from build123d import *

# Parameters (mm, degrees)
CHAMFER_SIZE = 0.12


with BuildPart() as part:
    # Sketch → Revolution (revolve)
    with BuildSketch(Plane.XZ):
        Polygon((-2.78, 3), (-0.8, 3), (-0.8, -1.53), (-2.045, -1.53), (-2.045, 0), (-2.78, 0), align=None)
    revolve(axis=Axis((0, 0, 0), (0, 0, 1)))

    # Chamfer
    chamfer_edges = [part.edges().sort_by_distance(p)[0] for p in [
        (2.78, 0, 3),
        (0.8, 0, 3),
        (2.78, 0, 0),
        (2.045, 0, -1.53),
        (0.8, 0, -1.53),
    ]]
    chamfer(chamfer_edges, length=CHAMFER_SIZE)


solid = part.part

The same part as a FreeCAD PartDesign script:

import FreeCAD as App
import Part
import Sketcher

V = App.Vector
Q = App.Units.Quantity


def edges_at(feature, points):
    """Names of the edges that pass closest to the given points."""
    edges = feature.Shape.Edges
    near = lambda p: min(range(len(edges)), key=lambda i: edges[i].distToShape(Part.Vertex(*p))[0])
    return sorted({f"Edge{near(p) + 1}" for p in points})

doc = App.newDocument("Part")
params = doc.addObject("Spreadsheet::Sheet", "Params")
for row, (alias, value) in enumerate([
    ("sketch1_height", "3 mm"),
    ("sketch1_width", "1.98 mm"),
    ("sketch1_height2", "1.53 mm"),
    ("revolution_angle", "360 deg"),
    ("chamfer_size", "0.12 mm"),
], start=1):
    params.set(f"A{row}", alias)
    params.set(f"B{row}", "=" + value)
    params.setAlias(f"B{row}", alias)

body = doc.addObject("PartDesign::Body", "Body")

# Sketch on XZ plane
sketch1 = doc.addObject("Sketcher::SketchObject", "Sketch")
body.addObject(sketch1)
sketch1.AttachmentSupport = (doc.XZ_Plane, [""])
sketch1.MapMode = "FlatFace"
sketch1.addGeometry([
    Part.LineSegment(V(-0.8, 3, 0), V(-2.8, 3, 0)),  # 0
    Part.LineSegment(V(-2.8, 3, 0), V(-2.8, 0, 0)),  # 1
    Part.LineSegment(V(-2.8, 0, 0), V(-2, 0, 0)),  # 2
    Part.LineSegment(V(-2, 0, 0), V(-2, -1.5, 0)),  # 3
    Part.LineSegment(V(-2, -1.5, 0), V(-0.8, -1.5, 0)),  # 4
    Part.LineSegment(V(-0.8, -1.5, 0), V(-0.8, 3, 0)),  # 5
], False)
sketch1.addConstraint([
    Sketcher.Constraint("Coincident", 0, 2, 1, 1),
    Sketcher.Constraint("Coincident", 1, 2, 2, 1),
    Sketcher.Constraint("Coincident", 2, 2, 3, 1),
    Sketcher.Constraint("Coincident", 3, 2, 4, 1),
    Sketcher.Constraint("Coincident", 4, 2, 5, 1),
    Sketcher.Constraint("Coincident", 5, 2, 0, 1),
    Sketcher.Constraint("Horizontal", 0),
    Sketcher.Constraint("Vertical", 1),
    Sketcher.Constraint("Horizontal", 2),
    Sketcher.Constraint("Vertical", 3),
    Sketcher.Constraint("Horizontal", 4),
    Sketcher.Constraint("Vertical", 5),
    Sketcher.Constraint("PointOnObject", 1, 2, -1),
    Sketcher.Constraint("DistanceY", 1, 2, 1, 1, Q("3 mm")),
    Sketcher.Constraint("DistanceX", 0, 2, 0, 1, Q("1.98 mm")),
    Sketcher.Constraint("DistanceY", 3, 2, 3, 1, Q("1.53 mm")),
    Sketcher.Constraint("DistanceX", 4, 2, -1, 1, Q("0.8 mm")),
    Sketcher.Constraint("DistanceX", 2, 1, 2, 2, Q("0.735 mm")),
])
sketch1.setExpression("Constraints[13]", "Params.sketch1_height")
sketch1.setExpression("Constraints[14]", "Params.sketch1_width")
sketch1.setExpression("Constraints[15]", "Params.sketch1_height2")
revolution = doc.addObject("PartDesign::Revolution", "Revolution")
body.addObject(revolution)
revolution.Profile = sketch1
revolution.ReferenceAxis = (sketch1, ["V_Axis"])
revolution.setExpression("Angle", "Params.revolution_angle")
doc.recompute()

chamfer = doc.addObject("PartDesign::Chamfer", "Chamfer")
body.addObject(chamfer)
chamfer.Base = (revolution, edges_at(revolution, [
    (2.78, 0, 3),
    (0.8, 0, 3),
    (2.78, 0, 0),
    (2.045, 0, -1.53),
    (0.8, 0, -1.53),
]))
chamfer.setExpression("Size", "Params.chamfer_size")

doc.recompute()
